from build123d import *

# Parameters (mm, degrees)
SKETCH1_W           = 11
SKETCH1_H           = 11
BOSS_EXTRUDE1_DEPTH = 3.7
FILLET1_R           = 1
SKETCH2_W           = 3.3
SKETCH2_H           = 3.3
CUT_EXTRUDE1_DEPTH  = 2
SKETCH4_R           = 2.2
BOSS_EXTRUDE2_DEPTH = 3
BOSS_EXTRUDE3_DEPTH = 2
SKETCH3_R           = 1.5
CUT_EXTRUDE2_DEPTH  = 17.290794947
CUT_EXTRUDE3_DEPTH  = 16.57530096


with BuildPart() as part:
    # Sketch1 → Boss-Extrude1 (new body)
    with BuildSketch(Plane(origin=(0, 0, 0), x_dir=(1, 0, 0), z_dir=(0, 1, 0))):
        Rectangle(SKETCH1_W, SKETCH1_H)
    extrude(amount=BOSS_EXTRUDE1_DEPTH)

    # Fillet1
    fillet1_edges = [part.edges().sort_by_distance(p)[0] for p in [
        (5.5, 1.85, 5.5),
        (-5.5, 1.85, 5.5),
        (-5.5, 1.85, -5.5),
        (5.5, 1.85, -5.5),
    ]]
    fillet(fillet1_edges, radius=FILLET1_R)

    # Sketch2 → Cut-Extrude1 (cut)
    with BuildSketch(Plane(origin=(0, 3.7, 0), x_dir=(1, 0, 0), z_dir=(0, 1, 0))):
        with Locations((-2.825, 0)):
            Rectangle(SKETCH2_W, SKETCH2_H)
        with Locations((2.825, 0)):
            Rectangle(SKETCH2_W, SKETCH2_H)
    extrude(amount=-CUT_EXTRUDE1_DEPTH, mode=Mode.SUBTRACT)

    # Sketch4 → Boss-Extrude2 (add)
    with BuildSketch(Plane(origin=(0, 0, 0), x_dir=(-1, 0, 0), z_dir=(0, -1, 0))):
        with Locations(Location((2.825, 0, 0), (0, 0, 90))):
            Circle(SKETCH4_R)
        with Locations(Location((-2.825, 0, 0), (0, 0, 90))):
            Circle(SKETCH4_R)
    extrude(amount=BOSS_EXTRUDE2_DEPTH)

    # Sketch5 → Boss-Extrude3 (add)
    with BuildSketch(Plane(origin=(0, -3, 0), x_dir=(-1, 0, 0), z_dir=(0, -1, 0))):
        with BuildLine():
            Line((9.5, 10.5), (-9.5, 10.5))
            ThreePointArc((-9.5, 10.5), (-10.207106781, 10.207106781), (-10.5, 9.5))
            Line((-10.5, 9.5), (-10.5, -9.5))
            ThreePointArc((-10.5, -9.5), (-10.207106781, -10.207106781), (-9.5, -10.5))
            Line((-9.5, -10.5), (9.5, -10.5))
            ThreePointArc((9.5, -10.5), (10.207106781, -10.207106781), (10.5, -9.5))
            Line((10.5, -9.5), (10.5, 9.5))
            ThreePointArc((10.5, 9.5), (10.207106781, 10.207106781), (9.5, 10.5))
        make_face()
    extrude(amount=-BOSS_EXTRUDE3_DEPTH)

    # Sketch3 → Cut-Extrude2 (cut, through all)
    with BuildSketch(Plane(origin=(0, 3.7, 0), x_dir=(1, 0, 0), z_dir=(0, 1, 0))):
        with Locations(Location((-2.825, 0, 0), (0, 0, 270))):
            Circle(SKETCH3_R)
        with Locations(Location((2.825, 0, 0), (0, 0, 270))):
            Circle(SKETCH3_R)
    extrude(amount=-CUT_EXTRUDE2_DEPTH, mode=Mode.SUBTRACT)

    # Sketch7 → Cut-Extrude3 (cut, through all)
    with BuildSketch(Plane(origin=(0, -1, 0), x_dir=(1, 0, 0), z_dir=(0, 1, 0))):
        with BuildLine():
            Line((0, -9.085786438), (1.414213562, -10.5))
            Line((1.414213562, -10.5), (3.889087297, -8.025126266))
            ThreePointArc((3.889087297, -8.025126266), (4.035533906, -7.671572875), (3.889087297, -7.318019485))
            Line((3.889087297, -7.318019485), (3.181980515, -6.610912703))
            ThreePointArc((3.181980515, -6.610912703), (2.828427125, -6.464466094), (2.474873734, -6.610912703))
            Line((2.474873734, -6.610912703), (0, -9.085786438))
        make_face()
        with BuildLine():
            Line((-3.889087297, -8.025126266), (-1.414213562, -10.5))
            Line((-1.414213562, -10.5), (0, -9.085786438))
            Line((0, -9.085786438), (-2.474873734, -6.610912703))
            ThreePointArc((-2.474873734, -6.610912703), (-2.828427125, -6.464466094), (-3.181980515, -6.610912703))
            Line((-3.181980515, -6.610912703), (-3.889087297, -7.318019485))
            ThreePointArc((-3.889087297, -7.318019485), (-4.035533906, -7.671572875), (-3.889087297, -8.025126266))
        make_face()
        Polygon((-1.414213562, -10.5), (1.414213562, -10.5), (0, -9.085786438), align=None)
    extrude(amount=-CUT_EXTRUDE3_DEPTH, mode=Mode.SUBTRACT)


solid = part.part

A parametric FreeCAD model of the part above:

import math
import FreeCAD as App
import Part
import Sketcher
from FreeCAD import Vector
Q = App.Units.Quantity


def edges_at(feature, points):
    """Names of the edges that pass closest to the given points."""
    edges = feature.Shape.Edges
    near = lambda p: min(range(len(edges)), key=lambda i: edges[i].distToShape(Part.Vertex(*p))[0])
    return sorted({f"Edge{near(p) + 1}" for p in points})


def add_polygon(sketch, points):
    """Adds a closed chain of lines whose ends are joined by coincident constraints."""
    first, n = sketch.GeometryCount, len(points)
    for a, b in zip(points, points[1:] + points[:1]):
        sketch.addGeometry(Part.LineSegment(App.Vector(*a, 0), App.Vector(*b, 0)), False)
    for i in range(n):
        sketch.addConstraint(Sketcher.Constraint("Coincident", first + i, 2, first + (i + 1) % n, 1))

doc = App.newDocument("Part")
params = doc.addObject("Spreadsheet::Sheet", "Params")
for row, (alias, value) in enumerate([
    ("sketch1_width", "11 mm"),
    ("pad1_length", "3.7 mm"),
    ("fillet_radius", "1 mm"),
    ("sketch2_width", "3.3 mm"),
    ("pocket1_length", "2 mm"),
    ("sketch3_diameter", "4.4 mm"),
    ("pad2_length", "3 mm"),
    ("sketch4_radius", "1 mm"),
    ("sketch4_width", "19 mm"),
    ("pad3_length", "2 mm"),
    ("sketch5_diameter", "3 mm"),
    ("sketch6_radius", "0.5 mm"),
    ("sketch6_length", "1 mm"),
    ("sketch6_length2", "3.5 mm"),
], start=1):
    params.set(f"A{row}", alias)
    params.set(f"B{row}", "=" + value)
    params.setAlias(f"B{row}", alias)

body = doc.addObject("PartDesign::Body", "Body")

sketch1 = body.newObject("Sketcher::SketchObject", "Sketch")
sketch1.AttachmentSupport = (doc.getObject("XZ_Plane"), [""])
sketch1.MapMode = "FlatFace"
add_polygon(sketch1, [(-6, -6), (-6, 6), (6, 6), (6, -6)])
sketch1.addConstraint([
    Sketcher.Constraint("Vertical", 0),
    Sketcher.Constraint("Horizontal", 1),
    Sketcher.Constraint("Vertical", 2),
    Sketcher.Constraint("Horizontal", 3),
    Sketcher.Constraint("Symmetric", 0, 2, 2, 2, -1, 1),
    Sketcher.Constraint("Equal", 3, 0),
    Sketcher.Constraint("DistanceX", 1, 1, 1, 2, Q("11 mm")),
])
sketch1.setExpression("Constraints[10]", "Params.sketch1_width")
pad1 = body.newObject("PartDesign::Pad", "Pad")
pad1.Profile = sketch1
pad1.setExpression("Length", "Params.pad1_length")
pad1.Reversed = True
doc.recompute()

fillet = body.newObject("PartDesign::Fillet", "Fillet")
fillet.Base = (pad1, edges_at(pad1, [
    (5.5, 1.85, 5.5),
    (-5.5, 1.85, 5.5),
    (-5.5, 1.85, -5.5),
    (5.5, 1.85, -5.5),
]))
fillet.setExpression("Radius", "Params.fillet_radius")

sketch2 = body.newObject("Sketcher::SketchObject", "Sketch001")
sketch2.AttachmentSupport = (doc.getObject("XZ_Plane"), [""])
sketch2.MapMode = "FlatFace"
sketch2.AttachmentOffset = App.Placement(Vector(0, 0, -3.7), App.Rotation())
add_polygon(sketch2, [(-4.5, -1.6), (-4.5, 1.6), (-1.2, 1.6), (-1.2, -1.6)])
add_polygon(sketch2, [(1.2, -1.6), (1.2, 1.6), (4.5, 1.6), (4.5, -1.6)])
sketch2.addConstraint([
    Sketcher.Constraint("Vertical", 0),
    Sketcher.Constraint("Horizontal", 1),
    Sketcher.Constraint("Vertical", 2),
    Sketcher.Constraint("Horizontal", 3),
    Sketcher.Constraint("Vertical", 4),
    Sketcher.Constraint("Horizontal", 5),
    Sketcher.Constraint("Vertical", 6),
    Sketcher.Constraint("Horizontal", 7),
    Sketcher.Constraint("Symmetric", 2, 2, 4, 2, -1, 1),
    Sketcher.Constraint("Symmetric", 0, 2, 6, 2, -1, 1),
    Sketcher.Constraint("Horizontal", 1, 2, 4, 2),
    Sketcher.Constraint("Equal", 7, 0),
    Sketcher.Constraint("DistanceX", 1, 1, 1, 2, Q("3.3 mm")),
    Sketcher.Constraint("DistanceX", 1, 2, 4, 2, Q("2.35 mm")),
])
sketch2.setExpression("Constraints[20]", "Params.sketch2_width")
pocket1 = body.newObject("PartDesign::Pocket", "Pocket")
pocket1.Profile = sketch2
pocket1.setExpression("Length", "Params.pocket1_length")
pocket1.Reversed = True

sketch3 = body.newObject("Sketcher::SketchObject", "Sketch002")
sketch3.AttachmentSupport = (doc.getObject("XZ_Plane"), [""])
sketch3.MapMode = "FlatFace"
sketch3.addGeometry([
    Part.Circle(Vector(-2.8, 0, 0), Vector(0, 0, 1), 2.2),
    Part.Circle(Vector(2.8, 0, 0), Vector(0, 0, 1), 2.2),
], False)
sketch3.addConstraint([
    Sketcher.Constraint("Equal", 0, 1),
    Sketcher.Constraint("Symmetric", 0, 3, 1, 3, -1, 1),
    Sketcher.Constraint("PointOnObject", 0, 3, -1),
    Sketcher.Constraint("Diameter", 0, Q("4.4 mm")),
    Sketcher.Constraint("DistanceX", 0, 3, 1, 3, Q("5.65 mm")),
])
sketch3.setExpression("Constraints[3]", "Params.sketch3_diameter")
pad2 = body.newObject("PartDesign::Pad", "Pad001")
pad2.Profile = sketch3
pad2.setExpression("Length", "Params.pad2_length")

sketch4 = body.newObject("Sketcher::SketchObject", "Sketch003")
sketch4.AttachmentSupport = (doc.getObject("XZ_Plane"), [""])
sketch4.MapMode = "FlatFace"
sketch4.AttachmentOffset = App.Placement(Vector(0, 0, 3), App.Rotation())
sketch4.addGeometry([
    Part.LineSegment(Vector(-9.5, -10.5, 0), Vector(9.5, -10.5, 0)),
    Part.ArcOfCircle(Part.Circle(Vector(9.5, -9.5, 0), Vector(0, 0, 1), 1), math.radians(-90), math.radians(0)),
    Part.LineSegment(Vector(10.5, -9.5, 0), Vector(10.5, 9.5, 0)),
    Part.ArcOfCircle(Part.Circle(Vector(9.5, 9.5, 0), Vector(0, 0, 1), 1), math.radians(0), math.radians(90)),
    Part.LineSegment(Vector(9.5, 10.5, 0), Vector(-9.5, 10.5, 0)),
    Part.ArcOfCircle(Part.Circle(Vector(-9.5, 9.5, 0), Vector(0, 0, 1), 1), math.radians(90), math.radians(180)),
    Part.LineSegment(Vector(-10.5, 9.5, 0), Vector(-10.5, -9.5, 0)),
    Part.ArcOfCircle(Part.Circle(Vector(-9.5, -9.5, 0), Vector(0, 0, 1), 1), math.radians(-180), math.radians(-90)),
], False)
sketch4.addConstraint([
    Sketcher.Constraint("Tangent", 0, 2, 1, 1),
    Sketcher.Constraint("Tangent", 1, 2, 2, 1),
    Sketcher.Constraint("Tangent", 2, 2, 3, 1),
    Sketcher.Constraint("Tangent", 3, 2, 4, 1),
    Sketcher.Constraint("Tangent", 4, 2, 5, 1),
    Sketcher.Constraint("Tangent", 5, 2, 6, 1),
    Sketcher.Constraint("Tangent", 6, 2, 7, 1),
    Sketcher.Constraint("Tangent", 7, 2, 0, 1),
    Sketcher.Constraint("Horizontal", 0),
    Sketcher.Constraint("Vertical", 2),
    Sketcher.Constraint("Horizontal", 4),
    Sketcher.Constraint("Vertical", 6),
    Sketcher.Constraint("Equal", 1, 3),
    Sketcher.Constraint("Equal", 3, 5),
    Sketcher.Constraint("Equal", 5, 7),
    Sketcher.Constraint("Symmetric", 1, 3, 5, 3, -1, 1),
    Sketcher.Constraint("Equal", 4, 2),
    Sketcher.Constraint("Radius", 1, Q("1 mm")),
    Sketcher.Constraint("DistanceX", 0, 1, 0, 2, Q("19 mm")),
])
sketch4.setExpression("Constraints[17]", "Params.sketch4_radius")
sketch4.setExpression("Constraints[18]", "Params.sketch4_width")
pad3 = body.newObject("PartDesign::Pad", "Pad002")
pad3.Profile = sketch4
pad3.setExpression("Length", "Params.pad3_length")
pad3.Reversed = True

sketch5 = body.newObject("Sketcher::SketchObject", "Sketch004")
sketch5.AttachmentSupport = (doc.getObject("XZ_Plane"), [""])
sketch5.MapMode = "FlatFace"
sketch5.AttachmentOffset = App.Placement(Vector(0, 0, -3.7), App.Rotation())
sketch5.addGeometry([
    Part.Circle(Vector(-2.8, 0, 0), Vector(0, 0, 1), 1.5),
    Part.Circle(Vector(2.8, 0, 0), Vector(0, 0, 1), 1.5),
], False)
sketch5.addConstraint([
    Sketcher.Constraint("Equal", 0, 1),
    Sketcher.Constraint("Symmetric", 0, 3, 1, 3, -1, 1),
    Sketcher.Constraint("PointOnObject", 0, 3, -1),
    Sketcher.Constraint("Diameter", 0, Q("3 mm")),
    Sketcher.Constraint("DistanceX", 0, 3, 1, 3, Q("5.65 mm")),
])
sketch5.setExpression("Constraints[3]", "Params.sketch5_diameter")
pocket2 = body.newObject("PartDesign::Pocket", "Pocket001")
pocket2.Profile = sketch5
pocket2.Type = "ThroughAll"
pocket2.Reversed = True

sketch6 = body.newObject("Sketcher::SketchObject", "Sketch005")
sketch6.AttachmentSupport = (doc.getObject("XZ_Plane"), [""])
sketch6.MapMode = "FlatFace"
sketch6.AttachmentOffset = App.Placement(Vector(0, 0, 1), App.Rotation())
sketch6.addGeometry([
    Part.LineSegment(Vector(1.4, 10.5, 0), Vector(3.9, 8, 0)),
    Part.ArcOfCircle(Part.Circle(Vector(3.5, 7.7, 0), Vector(0, 0, 1), 0.5), math.radians(-45), math.radians(45)),
    Part.LineSegment(Vector(3.9, 7.3, 0), Vector(3.2, 6.6, 0)),
    Part.ArcOfCircle(Part.Circle(Vector(2.8, 7, 0), Vector(0, 0, 1), 0.5), math.radians(-135), math.radians(-45)),
    Part.LineSegment(Vector(2.5, 6.6, 0), Vector(0, 9.1, 0)),
    Part.LineSegment(Vector(0, 9.1, 0), Vector(-2.5, 6.6, 0)),
    Part.ArcOfCircle(Part.Circle(Vector(-2.8, 7, 0), Vector(0, 0, 1), 0.5), math.radians(-135), math.radians(-45)),
    Part.LineSegment(Vector(-3.2, 6.6, 0), Vector(-3.9, 7.3, 0)),
    Part.ArcOfCircle(Part.Circle(Vector(-3.5, 7.7, 0), Vector(0, 0, 1), 0.5), math.radians(135), math.radians(225)),
    Part.LineSegment(Vector(-3.9, 8, 0), Vector(-1.4, 10.5, 0)),
    Part.LineSegment(Vector(-1.4, 10.5, 0), Vector(1.4, 10.5, 0)),
], False)
sketch6.addConstraint([
    Sketcher.Constraint("Tangent", 0, 2, 1, 2),
    Sketcher.Constraint("Tangent", 1, 1, 2, 1),
    Sketcher.Constraint("Tangent", 2, 2, 3, 2),
    Sketcher.Constraint("Tangent", 3, 1, 4, 1),
    Sketcher.Constraint("Coincident", 4, 2, 5, 1),
    Sketcher.Constraint("Tangent", 5, 2, 6, 2),
    Sketcher.Constraint("Tangent", 6, 1, 7, 1),
    Sketcher.Constraint("Tangent", 7, 2, 8, 2),
    Sketcher.Constraint("Tangent", 8, 1, 9, 1),
    Sketcher.Constraint("Coincident", 9, 2, 10, 1),
    Sketcher.Constraint("Coincident", 10, 2, 0, 1),
    Sketcher.Constraint("Horizontal", 10),
    Sketcher.Constraint("Equal", 1, 3),
    Sketcher.Constraint("Equal", 3, 6),
    Sketcher.Constraint("Equal", 6, 8),
    Sketcher.Constraint("Symmetric", 3, 3, 6, 3, -2),
    Sketcher.Constraint("Symmetric", 1, 3, 8, 3, -2),
    Sketcher.Constraint("PointOnObject", 4, 2, -2),
    Sketcher.Constraint("Perpendicular", 0, 2),
    Sketcher.Constraint("Perpendicular", 2, 4),
    Sketcher.Constraint("Perpendicular", 4, 5),
    Sketcher.Constraint("Perpendicular", 7, 9),
    Sketcher.Constraint("Equal", 0, 4),
    Sketcher.Constraint("Radius", 1, Q("0.5 mm")),
    Sketcher.Constraint("Distance", 2, Q("1 mm")),
    Sketcher.Constraint("Distance", 0, Q("3.5 mm")),
    Sketcher.Constraint("DistanceY", -1, 1, 9, 2, Q("10.5 mm")),
])
sketch6.setExpression("Constraints[23]", "Params.sketch6_radius")
sketch6.setExpression("Constraints[24]", "Params.sketch6_length")
sketch6.setExpression("Constraints[25]", "Params.sketch6_length2")
pocket3 = body.newObject("PartDesign::Pocket", "Pocket002")
pocket3.Profile = sketch6
pocket3.Type = "ThroughAll"
pocket3.Reversed = True

doc.recompute()
